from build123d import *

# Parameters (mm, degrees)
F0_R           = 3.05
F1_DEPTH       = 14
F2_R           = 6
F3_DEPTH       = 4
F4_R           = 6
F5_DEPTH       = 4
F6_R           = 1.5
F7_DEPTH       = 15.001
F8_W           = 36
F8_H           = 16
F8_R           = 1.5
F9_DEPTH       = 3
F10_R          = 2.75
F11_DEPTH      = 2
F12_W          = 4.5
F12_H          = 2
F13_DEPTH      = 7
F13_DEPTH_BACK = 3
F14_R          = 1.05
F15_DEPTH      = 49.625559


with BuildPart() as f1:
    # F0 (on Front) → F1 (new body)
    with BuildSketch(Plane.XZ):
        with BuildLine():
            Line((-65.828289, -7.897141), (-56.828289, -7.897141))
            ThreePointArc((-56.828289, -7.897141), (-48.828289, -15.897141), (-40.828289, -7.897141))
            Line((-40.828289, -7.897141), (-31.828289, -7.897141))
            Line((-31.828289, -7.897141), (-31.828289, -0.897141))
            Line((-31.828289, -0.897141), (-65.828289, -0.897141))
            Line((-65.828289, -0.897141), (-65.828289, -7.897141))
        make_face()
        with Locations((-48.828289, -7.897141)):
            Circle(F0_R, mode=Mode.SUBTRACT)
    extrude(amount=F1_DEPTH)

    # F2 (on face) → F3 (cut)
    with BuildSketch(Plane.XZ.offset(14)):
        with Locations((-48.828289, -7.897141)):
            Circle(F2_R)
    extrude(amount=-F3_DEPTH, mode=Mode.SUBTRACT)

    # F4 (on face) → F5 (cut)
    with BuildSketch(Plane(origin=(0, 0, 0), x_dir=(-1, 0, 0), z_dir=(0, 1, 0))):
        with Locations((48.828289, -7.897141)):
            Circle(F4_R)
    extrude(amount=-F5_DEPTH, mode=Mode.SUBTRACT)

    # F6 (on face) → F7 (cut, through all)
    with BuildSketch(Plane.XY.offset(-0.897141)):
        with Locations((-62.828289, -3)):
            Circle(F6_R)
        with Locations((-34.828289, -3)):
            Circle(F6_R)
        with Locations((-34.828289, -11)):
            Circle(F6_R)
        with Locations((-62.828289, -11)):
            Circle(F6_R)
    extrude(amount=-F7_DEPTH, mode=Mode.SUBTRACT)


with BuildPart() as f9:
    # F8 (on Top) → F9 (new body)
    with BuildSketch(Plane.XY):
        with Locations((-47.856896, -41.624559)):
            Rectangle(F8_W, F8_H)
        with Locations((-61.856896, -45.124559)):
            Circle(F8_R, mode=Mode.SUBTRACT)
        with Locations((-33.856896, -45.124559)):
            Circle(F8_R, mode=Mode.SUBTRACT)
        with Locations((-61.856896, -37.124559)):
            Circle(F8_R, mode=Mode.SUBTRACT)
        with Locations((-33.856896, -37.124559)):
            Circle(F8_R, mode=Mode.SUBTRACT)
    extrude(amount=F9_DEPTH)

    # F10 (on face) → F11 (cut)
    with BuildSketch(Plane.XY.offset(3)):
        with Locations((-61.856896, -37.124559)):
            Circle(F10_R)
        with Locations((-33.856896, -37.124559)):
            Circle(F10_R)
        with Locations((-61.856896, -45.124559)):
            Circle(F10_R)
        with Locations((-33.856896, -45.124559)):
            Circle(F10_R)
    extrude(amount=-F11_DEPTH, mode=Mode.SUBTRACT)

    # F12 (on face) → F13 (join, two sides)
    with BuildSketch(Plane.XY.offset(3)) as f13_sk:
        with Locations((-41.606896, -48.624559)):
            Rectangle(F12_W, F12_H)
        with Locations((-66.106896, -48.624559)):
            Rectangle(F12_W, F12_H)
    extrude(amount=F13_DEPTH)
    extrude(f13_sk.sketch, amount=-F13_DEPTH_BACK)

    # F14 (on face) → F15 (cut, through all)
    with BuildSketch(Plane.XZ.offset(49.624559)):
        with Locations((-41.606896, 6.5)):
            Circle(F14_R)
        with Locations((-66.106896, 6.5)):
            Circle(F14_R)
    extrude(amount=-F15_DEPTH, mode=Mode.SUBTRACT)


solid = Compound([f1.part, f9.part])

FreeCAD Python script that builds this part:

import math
import FreeCAD as App
import Part
import Sketcher
from FreeCAD import Vector
Q = App.Units.Quantity

doc = App.newDocument("Part")
params = doc.addObject("Spreadsheet::Sheet", "Params")
for row, (alias, value) in enumerate([
    ("sketch1_radius", "8 mm"),
    ("sketch1_diameter", "6.1 mm"),
    ("sketch1_width", "9 mm"),
    ("sketch1_height", "7 mm"),
    ("pad1_length", "14 mm"),
    ("sketch2_diameter", "12 mm"),
    ("pocket1_length", "4 mm"),
    ("sketch3_diameter", "12 mm"),
    ("pocket2_length", "4 mm"),
    ("sketch4_diameter", "3 mm"),
    ("sketch5_diameter", "3 mm"),
    ("sketch5_width", "36 mm"),
    ("sketch5_height", "16 mm"),
    ("pad2_length", "3 mm"),
    ("sketch6_diameter", "5.5 mm"),
    ("pocket4_length", "2 mm"),
    ("sketch7_height", "2 mm"),
    ("sketch7_width", "4.5 mm"),
    ("pad3_length", "7 mm"),
    ("pad3_length2", "3 mm"),
    ("sketch8_diameter", "2.1 mm"),
], start=1):
    params.set(f"A{row}", alias)
    params.set(f"B{row}", "=" + value)
    params.setAlias(f"B{row}", alias)

body = doc.addObject("PartDesign::Body", "Body")

# Sketch on XZ plane
sketch1 = doc.addObject("Sketcher::SketchObject", "Sketch")
body.addObject(sketch1)
sketch1.AttachmentSupport = (doc.XZ_Plane, [""])
sketch1.MapMode = "FlatFace"
sketch1.addGeometry(Part.LineSegment(Vector(-65.8, -7.9, 0), Vector(-56.8, -7.9, 0)), False)
sketch1.addGeometry(Part.ArcOfCircle(Part.Circle(Vector(-48.8, -7.9, 0), Vector(0, 0, 1), 8), math.radians(180), math.radians(360)), False)
sketch1.addGeometry(Part.LineSegment(Vector(-40.8, -7.9, 0), Vector(-31.8, -7.9, 0)), False)
sketch1.addGeometry(Part.LineSegment(Vector(-31.8, -7.9, 0), Vector(-31.8, -0.9, 0)), False)
sketch1.addGeometry(Part.LineSegment(Vector(-31.8, -0.9, 0), Vector(-65.8, -0.9, 0)), False)
sketch1.addGeometry(Part.LineSegment(Vector(-65.8, -0.9, 0), Vector(-65.8, -7.9, 0)), False)
sketch1.addGeometry(Part.Circle(Vector(-48.8, -7.9, 0), Vector(0, 0, 1), 3), False)
sketch1.addConstraint(Sketcher.Constraint("Coincident", 0, 2, 1, 1))
sketch1.addConstraint(Sketcher.Constraint("Coincident", 1, 2, 2, 1))
sketch1.addConstraint(Sketcher.Constraint("Coincident", 2, 2, 3, 1))
sketch1.addConstraint(Sketcher.Constraint("Coincident", 3, 2, 4, 1))
sketch1.addConstraint(Sketcher.Constraint("Coincident", 4, 2, 5, 1))
sketch1.addConstraint(Sketcher.Constraint("Coincident", 5, 2, 0, 1))
sketch1.addConstraint(Sketcher.Constraint("Horizontal", 0))
sketch1.addConstraint(Sketcher.Constraint("Horizontal", 2))
sketch1.addConstraint(Sketcher.Constraint("Vertical", 3))
sketch1.addConstraint(Sketcher.Constraint("Horizontal", 4))
sketch1.addConstraint(Sketcher.Constraint("Vertical", 5))
sketch1.addConstraint(Sketcher.Constraint("Coincident", 6, 3, 1, 3))
sketch1.addConstraint(Sketcher.Constraint("Horizontal", 6, 3, 0, 2))
sketch1.addConstraint(Sketcher.Constraint("Horizontal", 0, 2, 1, 2))
sketch1.addConstraint(Sketcher.Constraint("Equal", 0, 2))
sketch1.addConstraint(Sketcher.Constraint("Radius", 1, Q("8 mm")))
sketch1.addConstraint(Sketcher.Constraint("Diameter", 6, Q("6.1 mm")))
sketch1.addConstraint(Sketcher.Constraint("DistanceX", 0, 1, 0, 2, Q("9 mm")))
sketch1.addConstraint(Sketcher.Constraint("DistanceY", 3, 1, 3, 2, Q("7 mm")))
sketch1.addConstraint(Sketcher.Constraint("DistanceX", 1, 3, -1, 1, Q("48.828289 mm")))
sketch1.addConstraint(Sketcher.Constraint("DistanceY", 1, 3, -1, 1, Q("7.897141 mm")))
sketch1.setExpression("Constraints[15]", "Params.sketch1_radius")
sketch1.setExpression("Constraints[16]", "Params.sketch1_diameter")
sketch1.setExpression("Constraints[17]", "Params.sketch1_width")
sketch1.setExpression("Constraints[18]", "Params.sketch1_height")
pad1 = doc.addObject("PartDesign::Pad", "Pad")
body.addObject(pad1)
pad1.Profile = sketch1
pad1.setExpression("Length", "Params.pad1_length")

# Sketch on XZ plane
sketch2 = doc.addObject("Sketcher::SketchObject", "Sketch001")
body.addObject(sketch2)
sketch2.AttachmentSupport = (doc.XZ_Plane, [""])
sketch2.MapMode = "FlatFace"
sketch2.AttachmentOffset = App.Placement(Vector(0, 0, 14), App.Rotation())
sketch2.addGeometry(Part.Circle(Vector(-49, -8, 0), Vector(0, 0, 1), 6), False)
sketch2.addConstraint(Sketcher.Constraint("Diameter", 0, Q("12 mm")))
sketch2.addConstraint(Sketcher.Constraint("DistanceX", 0, 3, -1, 1, Q("48.828289 mm")))
sketch2.addConstraint(Sketcher.Constraint("DistanceY", 0, 3, -1, 1, Q("7.897141 mm")))
sketch2.setExpression("Constraints[0]", "Params.sketch2_diameter")
pocket1 = doc.addObject("PartDesign::Pocket", "Pocket")
body.addObject(pocket1)
pocket1.Profile = sketch2
pocket1.setExpression("Length", "Params.pocket1_length")

# Sketch on XZ plane
sketch3 = doc.addObject("Sketcher::SketchObject", "Sketch002")
body.addObject(sketch3)
sketch3.AttachmentSupport = (doc.XZ_Plane, [""])
sketch3.MapMode = "FlatFace"
sketch3.addGeometry(Part.Circle(Vector(-49, -8, 0), Vector(0, 0, 1), 6), False)
sketch3.addConstraint(Sketcher.Constraint("Diameter", 0, Q("12 mm")))
sketch3.addConstraint(Sketcher.Constraint("DistanceX", 0, 3, -1, 1, Q("48.828289 mm")))
sketch3.addConstraint(Sketcher.Constraint("DistanceY", 0, 3, -1, 1, Q("7.897141 mm")))
sketch3.setExpression("Constraints[0]", "Params.sketch3_diameter")
pocket2 = doc.addObject("PartDesign::Pocket", "Pocket001")
body.addObject(pocket2)
pocket2.Profile = sketch3
pocket2.setExpression("Length", "Params.pocket2_length")
pocket2.Reversed = True

# Sketch on XY plane
sketch4 = doc.addObject("Sketcher::SketchObject", "Sketch003")
body.addObject(sketch4)
sketch4.AttachmentSupport = (doc.XY_Plane, [""])
sketch4.MapMode = "FlatFace"
sketch4.AttachmentOffset = App.Placement(Vector(0, 0, -0.897141), App.Rotation())
sketch4.addGeometry(Part.Circle(Vector(-62.8, -3, 0), Vector(0, 0, 1), 1.5), False)
sketch4.addGeometry(Part.Circle(Vector(-34.8, -3, 0), Vector(0, 0, 1), 1.5), False)
sketch4.addGeometry(Part.Circle(Vector(-34.8, -11, 0), Vector(0, 0, 1), 1.5), False)
sketch4.addGeometry(Part.Circle(Vector(-62.8, -11, 0), Vector(0, 0, 1), 1.5), False)
sketch4.addConstraint(Sketcher.Constraint("Equal", 0, 1))
sketch4.addConstraint(Sketcher.Constraint("Equal", 1, 2))
sketch4.addConstraint(Sketcher.Constraint("Equal", 2, 3))
sketch4.addConstraint(Sketcher.Constraint("Horizontal", 0, 3, 1, 3))
sketch4.addConstraint(Sketcher.Constraint("Horizontal", 2, 3, 3, 3))
sketch4.addConstraint(Sketcher.Constraint("Vertical", 1, 3, 2, 3))
sketch4.addConstraint(Sketcher.Constraint("Vertical", 0, 3, 3, 3))
sketch4.addConstraint(Sketcher.Constraint("Diameter", 0, Q("3 mm")))
sketch4.addConstraint(Sketcher.Constraint("DistanceY", 0, 3, -1, 1, Q("3 mm")))
sketch4.addConstraint(Sketcher.Constraint("DistanceY", 2, 3, -1, 1, Q("11 mm")))
sketch4.addConstraint(Sketcher.Constraint("DistanceX", 0, 3, 1, 3, Q("28 mm")))
sketch4.addConstraint(Sketcher.Constraint("DistanceX", 0, 3, -1, 1, Q("62.828289 mm")))
sketch4.setExpression("Constraints[7]", "Params.sketch4_diameter")
pocket3 = doc.addObject("PartDesign::Pocket", "Pocket002")
body.addObject(pocket3)
pocket3.Profile = sketch4
pocket3.Type = "ThroughAll"
body2 = doc.addObject("PartDesign::Body", "Body001")

# Sketch on XY plane
sketch5 = doc.addObject("Sketcher::SketchObject", "Sketch004")
body2.addObject(sketch5)
sketch5.AttachmentSupport = (doc.getObject("XY_Plane001"), [""])
sketch5.MapMode = "FlatFace"
sketch5.addGeometry(Part.LineSegment(Vector(-65.9, -33.6, 0), Vector(-65.9, -49.6, 0)), False)
sketch5.addGeometry(Part.LineSegment(Vector(-65.9, -49.6, 0), Vector(-29.9, -49.6, 0)), False)
sketch5.addGeometry(Part.LineSegment(Vector(-29.9, -49.6, 0), Vector(-29.9, -33.6, 0)), False)
sketch5.addGeometry(Part.LineSegment(Vector(-29.9, -33.6, 0), Vector(-65.9, -33.6, 0)), False)
sketch5.addGeometry(Part.Circle(Vector(-61.9, -45.1, 0), Vector(0, 0, 1), 1.5), False)
sketch5.addGeometry(Part.Circle(Vector(-33.9, -45.1, 0), Vector(0, 0, 1), 1.5), False)
sketch5.addGeometry(Part.Circle(Vector(-61.9, -37.1, 0), Vector(0, 0, 1), 1.5), False)
sketch5.addGeometry(Part.Circle(Vector(-33.9, -37.1, 0), Vector(0, 0, 1), 1.5), False)
sketch5.addConstraint(Sketcher.Constraint("Coincident", 0, 2, 1, 1))
sketch5.addConstraint(Sketcher.Constraint("Coincident", 1, 2, 2, 1))
sketch5.addConstraint(Sketcher.Constraint("Coincident", 2, 2, 3, 1))
sketch5.addConstraint(Sketcher.Constraint("Coincident", 3, 2, 0, 1))
sketch5.addConstraint(Sketcher.Constraint("Vertical", 0))
sketch5.addConstraint(Sketcher.Constraint("Horizontal", 1))
sketch5.addConstraint(Sketcher.Constraint("Vertical", 2))
sketch5.addConstraint(Sketcher.Constraint("Horizontal", 3))
sketch5.addConstraint(Sketcher.Constraint("Equal", 4, 5))
sketch5.addConstraint(Sketcher.Constraint("Equal", 5, 6))
sketch5.addConstraint(Sketcher.Constraint("Equal", 6, 7))
sketch5.addConstraint(Sketcher.Constraint("Horizontal", 4, 3, 5, 3))
sketch5.addConstraint(Sketcher.Constraint("Horizontal", 6, 3, 7, 3))
sketch5.addConstraint(Sketcher.Constraint("Vertical", 4, 3, 6, 3))
sketch5.addConstraint(Sketcher.Constraint("Vertical", 5, 3, 7, 3))
sketch5.addConstraint(Sketcher.Constraint("Diameter", 4, Q("3 mm")))
sketch5.addConstraint(Sketcher.Constraint("DistanceX", 1, 1, 1, 2, Q("36 mm")))
sketch5.addConstraint(Sketcher.Constraint("DistanceY", 0, 2, 0, 1, Q("16 mm")))
sketch5.addConstraint(Sketcher.Constraint("DistanceX", 4, 3, 5, 3, Q("28 mm")))
sketch5.addConstraint(Sketcher.Constraint("DistanceY", 4, 3, 6, 3, Q("8 mm")))
sketch5.addConstraint(Sketcher.Constraint("DistanceX", 0, 2, 4, 3, Q("4 mm")))
sketch5.addConstraint(Sketcher.Constraint("DistanceY", 0, 2, 4, 3, Q("4.5 mm")))
sketch5.addConstraint(Sketcher.Constraint("DistanceY", 4, 3, -1, 1, Q("45.124559 mm")))
sketch5.addConstraint(Sketcher.Constraint("DistanceX", 4, 3, -1, 1, Q("61.856896 mm")))
sketch5.setExpression("Constraints[15]", "Params.sketch5_diameter")
sketch5.setExpression("Constraints[16]", "Params.sketch5_width")
sketch5.setExpression("Constraints[17]", "Params.sketch5_height")
pad2 = doc.addObject("PartDesign::Pad", "Pad001")
body2.addObject(pad2)
pad2.Profile = sketch5
pad2.setExpression("Length", "Params.pad2_length")

# Sketch on XY plane
sketch6 = doc.addObject("Sketcher::SketchObject", "Sketch005")
body2.addObject(sketch6)
sketch6.AttachmentSupport = (doc.getObject("XY_Plane001"), [""])
sketch6.MapMode = "FlatFace"
sketch6.AttachmentOffset = App.Placement(Vector(0, 0, 3), App.Rotation())
sketch6.addGeometry(Part.Circle(Vector(-61.9, -37.1, 0), Vector(0, 0, 1), 2.8), False)
sketch6.addGeometry(Part.Circle(Vector(-33.9, -37.1, 0), Vector(0, 0, 1), 2.8), False)
sketch6.addGeometry(Part.Circle(Vector(-61.9, -45.1, 0), Vector(0, 0, 1), 2.8), False)
sketch6.addGeometry(Part.Circle(Vector(-33.9, -45.1, 0), Vector(0, 0, 1), 2.8), False)
sketch6.addConstraint(Sketcher.Constraint("Equal", 0, 1))
sketch6.addConstraint(Sketcher.Constraint("Equal", 1, 2))
sketch6.addConstraint(Sketcher.Constraint("Equal", 2, 3))
sketch6.addConstraint(Sketcher.Constraint("Horizontal", 0, 3, 1, 3))
sketch6.addConstraint(Sketcher.Constraint("Horizontal", 2, 3, 3, 3))
sketch6.addConstraint(Sketcher.Constraint("Vertical", 0, 3, 2, 3))
sketch6.addConstraint(Sketcher.Constraint("Vertical", 1, 3, 3, 3))
sketch6.addConstraint(Sketcher.Constraint("Diameter", 0, Q("5.5 mm")))
sketch6.addConstraint(Sketcher.Constraint("DistanceX", 0, 3, 1, 3, Q("28 mm")))
sketch6.addConstraint(Sketcher.Constraint("DistanceY", 2, 3, 0, 3, Q("8 mm")))
sketch6.addConstraint(Sketcher.Constraint("DistanceY", 0, 3, -1, 1, Q("37.124559 mm")))
sketch6.addConstraint(Sketcher.Constraint("DistanceX", 0, 3, -1, 1, Q("61.856896 mm")))
sketch6.setExpression("Constraints[7]", "Params.sketch6_diameter")
pocket4 = doc.addObject("PartDesign::Pocket", "Pocket003")
body2.addObject(pocket4)
pocket4.Profile = sketch6
pocket4.setExpression("Length", "Params.pocket4_length")

# Sketch on XY plane
sketch7 = doc.addObject("Sketcher::SketchObject", "Sketch006")
body2.addObject(sketch7)
sketch7.AttachmentSupport = (doc.getObject("XY_Plane001"), [""])
sketch7.MapMode = "FlatFace"
sketch7.AttachmentOffset = App.Placement(Vector(0, 0, 3), App.Rotation())
sketch7.addGeometry(Part.LineSegment(Vector(-43.9, -47.6, 0), Vector(-43.9, -49.6, 0)), False)
sketch7.addGeometry(Part.LineSegment(Vector(-43.9, -49.6, 0), Vector(-39.4, -49.6, 0)), False)
sketch7.addGeometry(Part.LineSegment(Vector(-39.4, -49.6, 0), Vector(-39.4, -47.6, 0)), False)
sketch7.addGeometry(Part.LineSegment(Vector(-39.4, -47.6, 0), Vector(-43.9, -47.6, 0)), False)
sketch7.addGeometry(Part.LineSegment(Vector(-68.4, -47.6, 0), Vector(-68.4, -49.6, 0)), False)
sketch7.addGeometry(Part.LineSegment(Vector(-68.4, -49.6, 0), Vector(-63.9, -49.6, 0)), False)
sketch7.addGeometry(Part.LineSegment(Vector(-63.9, -49.6, 0), Vector(-63.9, -47.6, 0)), False)
sketch7.addGeometry(Part.LineSegment(Vector(-63.9, -47.6, 0), Vector(-68.4, -47.6, 0)), False)
sketch7.addConstraint(Sketcher.Constraint("Coincident", 0, 2, 1, 1))
sketch7.addConstraint(Sketcher.Constraint("Coincident", 1, 2, 2, 1))
sketch7.addConstraint(Sketcher.Constraint("Coincident", 2, 2, 3, 1))
sketch7.addConstraint(Sketcher.Constraint("Coincident", 3, 2, 0, 1))
sketch7.addConstraint(Sketcher.Constraint("Coincident", 4, 2, 5, 1))
sketch7.addConstraint(Sketcher.Constraint("Coincident", 5, 2, 6, 1))
sketch7.addConstraint(Sketcher.Constraint("Coincident", 6, 2, 7, 1))
sketch7.addConstraint(Sketcher.Constraint("Coincident", 7, 2, 4, 1))
sketch7.addConstraint(Sketcher.Constraint("Vertical", 0))
sketch7.addConstraint(Sketcher.Constraint("Horizontal", 1))
sketch7.addConstraint(Sketcher.Constraint("Vertical", 2))
sketch7.addConstraint(Sketcher.Constraint("Horizontal", 3))
sketch7.addConstraint(Sketcher.Constraint("Vertical", 4))
sketch7.addConstraint(Sketcher.Constraint("Horizontal", 5))
sketch7.addConstraint(Sketcher.Constraint("Vertical", 6))
sketch7.addConstraint(Sketcher.Constraint("Horizontal", 7))
sketch7.addConstraint(Sketcher.Constraint("Horizontal", 1, 2, 4, 2))
sketch7.addConstraint(Sketcher.Constraint("Horizontal", 3, 2, 6, 2))
sketch7.addConstraint(Sketcher.Constraint("Equal", 3, 5))
sketch7.addConstraint(Sketcher.Constraint("DistanceY", 0, 2, 0, 1, Q("2 mm")))
sketch7.addConstraint(Sketcher.Constraint("DistanceX", 1, 1, 1, 2, Q("4.5 mm")))
sketch7.addConstraint(Sketcher.Constraint("DistanceX", 4, 2, 1, 2, Q("29 mm")))
sketch7.addConstraint(Sketcher.Constraint("DistanceY", 0, 2, -1, 1, Q("49.624559 mm")))
sketch7.addConstraint(Sketcher.Constraint("DistanceX", 0, 2, -1, 1, Q("43.856896 mm")))
sketch7.setExpression("Constraints[19]", "Params.sketch7_height")
sketch7.setExpression("Constraints[20]", "Params.sketch7_width")
pad3 = doc.addObject("PartDesign::Pad", "Pad002")
body2.addObject(pad3)
pad3.Profile = sketch7
pad3.Type = "TwoLengths"
pad3.setExpression("Length", "Params.pad3_length")
pad3.setExpression("Length2", "Params.pad3_length2")

# Sketch on XZ plane
sketch8 = doc.addObject("Sketcher::SketchObject", "Sketch007")
body2.addObject(sketch8)
sketch8.AttachmentSupport = (doc.getObject("XZ_Plane001"), [""])
sketch8.MapMode = "FlatFace"
sketch8.AttachmentOffset = App.Placement(Vector(0, 0, 49.624559), App.Rotation())
sketch8.addGeometry(Part.Circle(Vector(-41.6, 6.5, 0), Vector(0, 0, 1), 1.1), False)
sketch8.addGeometry(Part.Circle(Vector(-66.1, 6.5, 0), Vector(0, 0, 1), 1.1), False)
sketch8.addConstraint(Sketcher.Constraint("Equal", 0, 1))
sketch8.addConstraint(Sketcher.Constraint("Horizontal", 0, 3, 1, 3))
sketch8.addConstraint(Sketcher.Constraint("Diameter", 0, Q("2.1 mm")))
sketch8.addConstraint(Sketcher.Constraint("DistanceY", -1, 1, 0, 3, Q("6.5 mm")))
sketch8.addConstraint(Sketcher.Constraint("DistanceX", 1, 3, 0, 3, Q("24.5 mm")))
sketch8.addConstraint(Sketcher.Constraint("DistanceX", 0, 3, -1, 1, Q("41.606896 mm")))
sketch8.setExpression("Constraints[2]", "Params.sketch8_diameter")
pocket5 = doc.addObject("PartDesign::Pocket", "Pocket004")
body2.addObject(pocket5)
pocket5.Profile = sketch8
pocket5.Type = "ThroughAll"

doc.recompute()
